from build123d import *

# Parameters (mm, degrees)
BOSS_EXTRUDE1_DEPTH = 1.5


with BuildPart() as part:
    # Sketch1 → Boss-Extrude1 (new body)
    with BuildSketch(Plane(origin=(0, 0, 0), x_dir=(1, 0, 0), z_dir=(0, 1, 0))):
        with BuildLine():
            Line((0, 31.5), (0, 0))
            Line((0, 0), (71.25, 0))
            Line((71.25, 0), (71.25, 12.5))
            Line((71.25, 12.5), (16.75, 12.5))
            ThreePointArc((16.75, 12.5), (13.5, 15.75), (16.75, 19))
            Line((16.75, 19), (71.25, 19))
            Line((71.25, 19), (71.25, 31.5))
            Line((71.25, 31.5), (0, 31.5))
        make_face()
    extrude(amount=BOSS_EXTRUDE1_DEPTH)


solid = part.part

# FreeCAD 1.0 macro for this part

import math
import FreeCAD as App
import Part
import Sketcher
from FreeCAD import Vector

doc = App.newDocument("Part")
body = doc.addObject("PartDesign::Body", "Body")

sketch1 = doc.addObject("Sketcher::SketchObject", "Sketch")
body.addObject(sketch1)
sketch1.AttachmentSupport = (doc.XZ_Plane, [""])
sketch1.MapMode = "FlatFace"
sketch1.addGeometry([
    Part.LineSegment(Vector(0, -31.5, 0), Vector(0, 0, 0)),
    Part.LineSegment(Vector(0, 0, 0), Vector(71.25, 0, 0)),
    Part.LineSegment(Vector(71.25, 0, 0), Vector(71.25, -12.5, 0)),
    Part.LineSegment(Vector(71.25, -12.5, 0), Vector(16.75, -12.5, 0)),
    Part.ArcOfCircle(Part.Circle(Vector(16.75, -15.75, 0), Vector(0, 0, 1), 3.25), math.radians(90), math.radians(270)),
    Part.LineSegment(Vector(16.75, -19, 0), Vector(71.25, -19, 0)),
    Part.LineSegment(Vector(71.25, -19, 0), Vector(71.25, -31.5, 0)),
    Part.LineSegment(Vector(71.25, -31.5, 0), Vector(0, -31.5, 0)),
], False)
sketch1.addConstraint([
    Sketcher.Constraint("Coincident", 0, 2, 1, 1),
    Sketcher.Constraint("Coincident", 1, 2, 2, 1),
    Sketcher.Constraint("Coincident", 2, 2, 3, 1),
    Sketcher.Constraint("Tangent", 3, 2, 4, 1),
    Sketcher.Constraint("Tangent", 4, 2, 5, 1),
    Sketcher.Constraint("Coincident", 5, 2, 6, 1),
    Sketcher.Constraint("Coincident", 6, 2, 7, 1),
    Sketcher.Constraint("Coincident", 7, 2, 0, 1),
    Sketcher.Constraint("Vertical", 0),
    Sketcher.Constraint("Horizontal", 1),
    Sketcher.Constraint("Vertical", 2),
    Sketcher.Constraint("Horizontal", 3),
    Sketcher.Constraint("Horizontal", 5),
    Sketcher.Constraint("Vertical", 6),
    Sketcher.Constraint("Horizontal", 7),
    Sketcher.Constraint("Coincident", 0, 2, -1, 1),
    Sketcher.Constraint("Vertical", 2, 2, 5, 2),
    Sketcher.Constraint("Equal", 2, 6),
    Sketcher.Constraint("Radius", 4, 3.25),
    Sketcher.Constraint("DistanceX", 3, 2, 3, 1, 54.5),
    Sketcher.Constraint("DistanceY", 0, 1, 0, 2, 31.5),
    Sketcher.Constraint("DistanceX", 1, 1, 1, 2, 71.25),
])
pad1 = doc.addObject("PartDesign::Pad", "Pad")
body.addObject(pad1)
pad1.Profile = sketch1
pad1.Length = 1.5
pad1.Reversed = True

doc.recompute()
